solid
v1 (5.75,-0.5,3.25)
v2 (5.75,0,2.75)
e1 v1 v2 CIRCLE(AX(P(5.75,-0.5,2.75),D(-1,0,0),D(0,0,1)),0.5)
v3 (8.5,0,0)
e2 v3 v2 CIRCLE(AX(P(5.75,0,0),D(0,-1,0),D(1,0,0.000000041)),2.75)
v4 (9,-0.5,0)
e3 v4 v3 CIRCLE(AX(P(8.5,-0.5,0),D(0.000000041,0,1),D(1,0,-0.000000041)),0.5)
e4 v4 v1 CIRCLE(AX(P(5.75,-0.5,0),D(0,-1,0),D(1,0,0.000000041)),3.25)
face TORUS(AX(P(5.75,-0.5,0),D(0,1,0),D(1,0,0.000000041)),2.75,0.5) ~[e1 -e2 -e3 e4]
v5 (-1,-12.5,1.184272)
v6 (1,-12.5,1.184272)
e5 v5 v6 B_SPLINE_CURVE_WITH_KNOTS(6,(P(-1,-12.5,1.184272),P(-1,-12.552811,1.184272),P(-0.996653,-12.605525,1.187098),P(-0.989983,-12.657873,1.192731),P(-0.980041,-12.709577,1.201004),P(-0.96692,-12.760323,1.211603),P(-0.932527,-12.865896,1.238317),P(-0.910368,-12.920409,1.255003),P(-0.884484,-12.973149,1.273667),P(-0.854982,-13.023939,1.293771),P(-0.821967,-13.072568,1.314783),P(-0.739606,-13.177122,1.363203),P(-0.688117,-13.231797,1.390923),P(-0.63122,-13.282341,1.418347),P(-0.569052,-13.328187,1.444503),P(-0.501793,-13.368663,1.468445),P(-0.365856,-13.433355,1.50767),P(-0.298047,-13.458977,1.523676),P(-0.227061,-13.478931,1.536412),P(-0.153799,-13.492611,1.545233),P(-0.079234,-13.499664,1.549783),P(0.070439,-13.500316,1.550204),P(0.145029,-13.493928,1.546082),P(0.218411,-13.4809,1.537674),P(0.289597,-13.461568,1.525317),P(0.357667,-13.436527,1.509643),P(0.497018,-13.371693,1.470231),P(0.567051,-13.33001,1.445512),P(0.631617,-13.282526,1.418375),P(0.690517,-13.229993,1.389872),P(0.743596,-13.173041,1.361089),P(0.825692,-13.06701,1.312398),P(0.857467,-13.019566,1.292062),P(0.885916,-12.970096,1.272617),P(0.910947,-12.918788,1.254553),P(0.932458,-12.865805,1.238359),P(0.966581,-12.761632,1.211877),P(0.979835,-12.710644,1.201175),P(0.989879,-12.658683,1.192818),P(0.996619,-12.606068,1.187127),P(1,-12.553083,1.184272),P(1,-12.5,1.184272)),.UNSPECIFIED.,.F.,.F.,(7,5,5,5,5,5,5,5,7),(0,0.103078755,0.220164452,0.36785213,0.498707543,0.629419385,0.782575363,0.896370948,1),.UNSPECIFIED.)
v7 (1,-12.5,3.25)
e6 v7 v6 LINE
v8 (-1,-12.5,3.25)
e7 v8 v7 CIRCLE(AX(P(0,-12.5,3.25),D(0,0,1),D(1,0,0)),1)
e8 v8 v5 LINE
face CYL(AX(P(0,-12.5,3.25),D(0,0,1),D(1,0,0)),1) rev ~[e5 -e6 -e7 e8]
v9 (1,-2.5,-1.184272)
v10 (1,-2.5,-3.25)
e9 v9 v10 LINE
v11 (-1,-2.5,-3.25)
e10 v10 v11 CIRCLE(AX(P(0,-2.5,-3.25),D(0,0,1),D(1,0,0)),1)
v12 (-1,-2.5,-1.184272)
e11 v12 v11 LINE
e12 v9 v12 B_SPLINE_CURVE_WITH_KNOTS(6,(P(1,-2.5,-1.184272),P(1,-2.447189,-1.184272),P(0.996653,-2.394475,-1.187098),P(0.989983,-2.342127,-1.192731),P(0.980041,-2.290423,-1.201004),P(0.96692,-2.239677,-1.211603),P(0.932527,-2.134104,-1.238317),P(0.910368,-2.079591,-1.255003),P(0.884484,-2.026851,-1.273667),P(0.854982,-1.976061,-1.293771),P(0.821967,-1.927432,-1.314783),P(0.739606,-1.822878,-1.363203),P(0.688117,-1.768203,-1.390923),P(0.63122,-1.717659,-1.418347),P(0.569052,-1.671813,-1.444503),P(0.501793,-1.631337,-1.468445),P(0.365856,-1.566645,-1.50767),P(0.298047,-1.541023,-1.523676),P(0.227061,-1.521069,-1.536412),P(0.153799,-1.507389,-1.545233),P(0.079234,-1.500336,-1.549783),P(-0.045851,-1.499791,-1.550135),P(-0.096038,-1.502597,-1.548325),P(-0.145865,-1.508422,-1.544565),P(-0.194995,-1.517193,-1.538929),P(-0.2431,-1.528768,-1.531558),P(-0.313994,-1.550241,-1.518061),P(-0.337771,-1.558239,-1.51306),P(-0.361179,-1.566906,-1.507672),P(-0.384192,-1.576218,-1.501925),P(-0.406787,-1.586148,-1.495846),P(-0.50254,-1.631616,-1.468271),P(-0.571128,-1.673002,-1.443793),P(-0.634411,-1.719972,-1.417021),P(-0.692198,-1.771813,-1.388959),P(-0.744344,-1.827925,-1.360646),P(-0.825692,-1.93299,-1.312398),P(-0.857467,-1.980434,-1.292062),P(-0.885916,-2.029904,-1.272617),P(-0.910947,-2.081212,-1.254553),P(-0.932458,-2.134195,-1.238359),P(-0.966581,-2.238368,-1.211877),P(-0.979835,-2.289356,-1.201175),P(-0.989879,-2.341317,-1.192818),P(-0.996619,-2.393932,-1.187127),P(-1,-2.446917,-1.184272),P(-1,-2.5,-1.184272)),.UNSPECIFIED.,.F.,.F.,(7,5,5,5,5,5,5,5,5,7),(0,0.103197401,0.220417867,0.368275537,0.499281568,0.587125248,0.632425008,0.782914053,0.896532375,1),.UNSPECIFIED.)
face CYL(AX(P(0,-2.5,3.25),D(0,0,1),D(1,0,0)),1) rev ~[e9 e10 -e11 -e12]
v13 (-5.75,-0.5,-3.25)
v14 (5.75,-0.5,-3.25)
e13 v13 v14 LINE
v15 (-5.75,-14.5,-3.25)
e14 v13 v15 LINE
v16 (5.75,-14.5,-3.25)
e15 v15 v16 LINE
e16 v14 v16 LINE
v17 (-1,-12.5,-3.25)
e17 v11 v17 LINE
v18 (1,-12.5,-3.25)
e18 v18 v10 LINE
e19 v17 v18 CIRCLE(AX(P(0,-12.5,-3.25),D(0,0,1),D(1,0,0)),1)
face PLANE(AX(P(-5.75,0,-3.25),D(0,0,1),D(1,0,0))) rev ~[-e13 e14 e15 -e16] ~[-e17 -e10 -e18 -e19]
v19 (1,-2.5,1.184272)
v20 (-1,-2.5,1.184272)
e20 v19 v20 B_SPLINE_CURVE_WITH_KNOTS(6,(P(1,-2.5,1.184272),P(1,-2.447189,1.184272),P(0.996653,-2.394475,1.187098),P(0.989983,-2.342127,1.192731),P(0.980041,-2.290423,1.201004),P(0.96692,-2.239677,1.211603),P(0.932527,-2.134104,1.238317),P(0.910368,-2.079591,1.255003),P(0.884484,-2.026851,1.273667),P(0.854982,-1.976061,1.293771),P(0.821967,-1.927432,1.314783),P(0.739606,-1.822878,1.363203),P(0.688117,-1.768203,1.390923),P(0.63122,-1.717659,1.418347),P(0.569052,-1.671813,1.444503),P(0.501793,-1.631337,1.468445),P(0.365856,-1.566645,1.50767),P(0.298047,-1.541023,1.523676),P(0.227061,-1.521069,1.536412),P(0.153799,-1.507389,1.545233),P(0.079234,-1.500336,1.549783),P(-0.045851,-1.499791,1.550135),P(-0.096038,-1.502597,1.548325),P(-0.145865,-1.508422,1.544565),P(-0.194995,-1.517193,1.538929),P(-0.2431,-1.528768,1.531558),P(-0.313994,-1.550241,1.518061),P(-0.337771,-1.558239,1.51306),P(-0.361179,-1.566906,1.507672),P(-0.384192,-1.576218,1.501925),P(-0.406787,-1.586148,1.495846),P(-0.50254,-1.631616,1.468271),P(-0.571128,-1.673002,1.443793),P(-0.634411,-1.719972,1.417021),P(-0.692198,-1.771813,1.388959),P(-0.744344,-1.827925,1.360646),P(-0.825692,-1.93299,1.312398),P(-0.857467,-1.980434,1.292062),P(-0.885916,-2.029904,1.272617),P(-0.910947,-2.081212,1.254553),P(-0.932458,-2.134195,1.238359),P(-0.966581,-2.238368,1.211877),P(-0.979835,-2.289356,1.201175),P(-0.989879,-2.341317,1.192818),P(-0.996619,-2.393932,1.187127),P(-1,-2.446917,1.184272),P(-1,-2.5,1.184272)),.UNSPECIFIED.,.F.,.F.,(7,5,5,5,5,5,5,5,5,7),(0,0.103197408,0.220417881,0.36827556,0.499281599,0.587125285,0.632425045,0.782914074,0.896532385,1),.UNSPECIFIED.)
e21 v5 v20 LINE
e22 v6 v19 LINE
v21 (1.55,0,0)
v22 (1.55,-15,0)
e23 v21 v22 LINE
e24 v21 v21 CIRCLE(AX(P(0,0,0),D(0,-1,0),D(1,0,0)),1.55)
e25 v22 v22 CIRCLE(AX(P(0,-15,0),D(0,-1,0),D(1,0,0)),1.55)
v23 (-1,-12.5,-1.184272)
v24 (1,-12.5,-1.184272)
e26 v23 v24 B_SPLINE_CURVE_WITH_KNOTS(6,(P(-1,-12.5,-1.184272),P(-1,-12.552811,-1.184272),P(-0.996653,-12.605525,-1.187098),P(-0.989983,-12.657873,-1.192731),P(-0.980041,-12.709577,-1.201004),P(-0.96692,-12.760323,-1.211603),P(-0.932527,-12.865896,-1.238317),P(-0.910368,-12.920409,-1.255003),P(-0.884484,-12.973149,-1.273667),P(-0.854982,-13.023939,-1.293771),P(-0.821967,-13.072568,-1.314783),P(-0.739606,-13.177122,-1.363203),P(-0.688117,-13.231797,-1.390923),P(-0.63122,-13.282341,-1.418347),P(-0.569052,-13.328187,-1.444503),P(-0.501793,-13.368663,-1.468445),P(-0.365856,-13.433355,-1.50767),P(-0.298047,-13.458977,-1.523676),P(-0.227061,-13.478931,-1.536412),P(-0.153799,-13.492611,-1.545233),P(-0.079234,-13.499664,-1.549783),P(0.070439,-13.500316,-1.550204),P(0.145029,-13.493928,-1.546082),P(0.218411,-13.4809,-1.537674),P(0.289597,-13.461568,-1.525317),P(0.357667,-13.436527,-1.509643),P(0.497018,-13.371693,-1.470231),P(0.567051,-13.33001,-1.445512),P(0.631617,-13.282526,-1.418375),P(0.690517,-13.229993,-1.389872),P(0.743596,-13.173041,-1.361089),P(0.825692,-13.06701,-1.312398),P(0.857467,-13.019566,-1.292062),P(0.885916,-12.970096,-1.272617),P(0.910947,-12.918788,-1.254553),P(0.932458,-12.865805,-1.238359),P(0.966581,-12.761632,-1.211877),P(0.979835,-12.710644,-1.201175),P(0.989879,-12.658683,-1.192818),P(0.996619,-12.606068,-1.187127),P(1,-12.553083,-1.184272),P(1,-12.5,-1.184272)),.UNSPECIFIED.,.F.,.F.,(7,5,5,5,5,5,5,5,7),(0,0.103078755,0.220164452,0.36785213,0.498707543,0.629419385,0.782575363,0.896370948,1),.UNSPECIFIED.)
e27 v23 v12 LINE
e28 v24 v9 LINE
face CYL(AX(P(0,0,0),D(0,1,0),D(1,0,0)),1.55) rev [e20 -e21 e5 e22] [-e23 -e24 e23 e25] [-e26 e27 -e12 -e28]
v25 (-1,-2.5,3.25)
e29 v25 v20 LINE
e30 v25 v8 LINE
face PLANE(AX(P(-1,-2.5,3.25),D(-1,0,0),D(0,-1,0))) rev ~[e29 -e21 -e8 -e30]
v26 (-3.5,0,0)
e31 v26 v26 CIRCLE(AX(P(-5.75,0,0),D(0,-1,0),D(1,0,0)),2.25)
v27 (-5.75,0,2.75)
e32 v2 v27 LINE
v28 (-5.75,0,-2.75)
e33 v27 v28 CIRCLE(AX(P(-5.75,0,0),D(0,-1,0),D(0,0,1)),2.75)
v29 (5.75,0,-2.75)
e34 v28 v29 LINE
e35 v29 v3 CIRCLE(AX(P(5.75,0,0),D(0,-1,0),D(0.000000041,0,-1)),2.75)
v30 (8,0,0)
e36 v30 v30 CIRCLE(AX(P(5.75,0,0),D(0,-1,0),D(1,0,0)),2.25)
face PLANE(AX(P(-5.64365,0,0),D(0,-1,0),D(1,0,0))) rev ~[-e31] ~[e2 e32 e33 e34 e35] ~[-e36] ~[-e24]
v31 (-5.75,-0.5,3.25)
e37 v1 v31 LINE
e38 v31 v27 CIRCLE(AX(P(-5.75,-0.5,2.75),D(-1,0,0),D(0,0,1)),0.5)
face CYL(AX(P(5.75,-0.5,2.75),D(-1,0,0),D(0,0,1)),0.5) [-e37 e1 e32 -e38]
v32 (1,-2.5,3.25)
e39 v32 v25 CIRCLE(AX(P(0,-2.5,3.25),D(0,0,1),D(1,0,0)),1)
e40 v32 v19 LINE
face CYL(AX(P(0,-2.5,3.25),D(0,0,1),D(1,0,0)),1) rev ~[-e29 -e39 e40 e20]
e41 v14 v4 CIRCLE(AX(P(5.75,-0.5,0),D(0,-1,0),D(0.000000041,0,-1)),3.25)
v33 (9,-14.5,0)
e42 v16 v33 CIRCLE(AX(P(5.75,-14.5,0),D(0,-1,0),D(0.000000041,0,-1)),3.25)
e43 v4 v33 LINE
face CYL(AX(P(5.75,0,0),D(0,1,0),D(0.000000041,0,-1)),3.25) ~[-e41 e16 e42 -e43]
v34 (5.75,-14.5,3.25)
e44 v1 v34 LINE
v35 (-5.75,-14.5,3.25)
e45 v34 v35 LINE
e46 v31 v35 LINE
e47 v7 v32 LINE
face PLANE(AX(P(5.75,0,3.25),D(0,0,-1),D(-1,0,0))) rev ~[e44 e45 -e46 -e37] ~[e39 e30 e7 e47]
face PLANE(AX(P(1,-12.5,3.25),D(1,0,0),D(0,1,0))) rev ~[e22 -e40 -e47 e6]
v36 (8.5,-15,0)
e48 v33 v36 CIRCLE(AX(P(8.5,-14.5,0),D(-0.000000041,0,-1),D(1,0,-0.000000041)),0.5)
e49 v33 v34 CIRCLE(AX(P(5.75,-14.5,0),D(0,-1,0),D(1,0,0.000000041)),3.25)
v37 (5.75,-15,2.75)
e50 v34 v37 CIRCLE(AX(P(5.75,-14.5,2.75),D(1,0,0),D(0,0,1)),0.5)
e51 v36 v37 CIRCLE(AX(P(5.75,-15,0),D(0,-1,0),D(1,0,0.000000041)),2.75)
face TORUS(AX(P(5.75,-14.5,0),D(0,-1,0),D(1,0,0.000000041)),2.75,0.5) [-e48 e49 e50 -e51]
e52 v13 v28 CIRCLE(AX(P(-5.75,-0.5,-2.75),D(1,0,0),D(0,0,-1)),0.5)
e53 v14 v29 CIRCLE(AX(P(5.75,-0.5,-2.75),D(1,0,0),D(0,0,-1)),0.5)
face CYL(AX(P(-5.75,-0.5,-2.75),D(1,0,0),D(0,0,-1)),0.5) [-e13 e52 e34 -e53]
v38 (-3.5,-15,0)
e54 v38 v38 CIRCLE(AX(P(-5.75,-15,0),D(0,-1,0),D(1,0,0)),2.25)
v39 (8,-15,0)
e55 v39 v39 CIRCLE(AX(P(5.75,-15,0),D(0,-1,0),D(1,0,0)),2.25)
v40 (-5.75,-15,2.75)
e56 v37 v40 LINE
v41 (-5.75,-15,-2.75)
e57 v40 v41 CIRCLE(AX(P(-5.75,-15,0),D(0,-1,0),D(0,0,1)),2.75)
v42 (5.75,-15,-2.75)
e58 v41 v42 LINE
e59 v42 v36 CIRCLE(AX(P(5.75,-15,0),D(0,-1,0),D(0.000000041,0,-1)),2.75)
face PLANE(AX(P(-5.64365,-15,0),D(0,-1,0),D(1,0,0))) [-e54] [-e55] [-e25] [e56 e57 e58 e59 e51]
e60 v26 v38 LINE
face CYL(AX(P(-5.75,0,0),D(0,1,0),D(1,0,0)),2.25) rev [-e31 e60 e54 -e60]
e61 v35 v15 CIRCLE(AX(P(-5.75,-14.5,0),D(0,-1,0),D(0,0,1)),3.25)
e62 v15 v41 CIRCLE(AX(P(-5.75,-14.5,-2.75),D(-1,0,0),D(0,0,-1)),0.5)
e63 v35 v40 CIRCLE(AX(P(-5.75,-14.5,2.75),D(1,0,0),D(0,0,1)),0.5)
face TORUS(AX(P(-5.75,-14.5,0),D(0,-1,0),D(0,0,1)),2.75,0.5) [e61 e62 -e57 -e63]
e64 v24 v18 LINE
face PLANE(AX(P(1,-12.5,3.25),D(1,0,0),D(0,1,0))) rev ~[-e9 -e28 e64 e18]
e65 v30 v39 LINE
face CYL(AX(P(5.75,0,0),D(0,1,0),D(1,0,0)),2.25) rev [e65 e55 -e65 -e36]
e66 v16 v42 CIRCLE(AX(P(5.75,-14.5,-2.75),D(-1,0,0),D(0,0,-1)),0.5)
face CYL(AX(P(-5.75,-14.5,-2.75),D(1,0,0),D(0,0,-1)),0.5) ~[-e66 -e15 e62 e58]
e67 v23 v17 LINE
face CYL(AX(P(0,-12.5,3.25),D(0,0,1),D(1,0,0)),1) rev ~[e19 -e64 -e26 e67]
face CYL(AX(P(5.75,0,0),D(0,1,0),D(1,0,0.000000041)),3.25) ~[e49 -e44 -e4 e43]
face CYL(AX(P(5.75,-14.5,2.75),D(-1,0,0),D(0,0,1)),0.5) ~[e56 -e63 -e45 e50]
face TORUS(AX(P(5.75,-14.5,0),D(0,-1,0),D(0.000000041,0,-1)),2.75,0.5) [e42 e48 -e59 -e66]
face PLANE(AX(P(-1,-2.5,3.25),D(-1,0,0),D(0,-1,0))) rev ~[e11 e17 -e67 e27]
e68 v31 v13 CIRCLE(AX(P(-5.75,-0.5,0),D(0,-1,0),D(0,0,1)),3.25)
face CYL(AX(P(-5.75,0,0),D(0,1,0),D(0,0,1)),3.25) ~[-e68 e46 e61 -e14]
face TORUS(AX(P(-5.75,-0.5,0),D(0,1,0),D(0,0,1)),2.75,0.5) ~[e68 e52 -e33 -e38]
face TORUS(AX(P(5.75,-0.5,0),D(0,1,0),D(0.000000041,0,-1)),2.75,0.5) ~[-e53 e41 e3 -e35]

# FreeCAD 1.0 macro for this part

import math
import FreeCAD as App
import Part
import Sketcher


def edges_at(feature, points):
    """Names of the edges that pass closest to the given points."""
    edges = feature.Shape.Edges
    near = lambda p: min(range(len(edges)), key=lambda i: edges[i].distToShape(Part.Vertex(*p))[0])
    return sorted({f"Edge{near(p) + 1}" for p in points})

doc = App.newDocument("Part")
params = doc.addObject("Spreadsheet::Sheet", "Params")
for row, (alias, value) in enumerate([
    ("sketch1_diameter", "4.5 mm"),
    ("sketch1_diameter2", "3.1 mm"),
    ("sketch1_radius", "3.25 mm"),
    ("sketch1_width", "11.5 mm"),
    ("pad1_length", "15 mm"),
    ("sketch2_radius", "1 mm"),
    ("sketch2_height", "10 mm"),
    ("fillet_radius", "0.5 mm"),
], start=1):
    params.set(f"A{row}", alias)
    params.set(f"B{row}", "=" + value)
    params.setAlias(f"B{row}", alias)

body = doc.addObject("PartDesign::Body", "Body")

sketch1 = doc.addObject("Sketcher::SketchObject", "Sketch")
body.addObject(sketch1)
sketch1.AttachmentSupport = (doc.XZ_Plane, [""])
sketch1.MapMode = "FlatFace"
sketch1.addGeometry([
    Part.ArcOfCircle(Part.Circle(App.Vector(-5.8, 0, 0), App.Vector(0, 0, 1), 3.2), math.radians(90), math.radians(270)),
    Part.LineSegment(App.Vector(-5.8, -3.2, 0), App.Vector(5.8, -3.2, 0)),
    Part.ArcOfCircle(Part.Circle(App.Vector(5.7, 0, 0), App.Vector(0, 0, 1), 3.3), math.radians(-90), math.radians(0)),
    Part.ArcOfCircle(Part.Circle(App.Vector(5.7, 0, 0), App.Vector(0, 0, 1), 3.3), math.radians(0), math.radians(90)),
    Part.LineSegment(App.Vector(5.8, 3.2, 0), App.Vector(-5.8, 3.2, 0)),
    Part.Circle(App.Vector(-5.8, 0, 0), App.Vector(0, 0, 1), 2.2),
    Part.Circle(App.Vector(0, 0, 0), App.Vector(0, 0, 1), 1.6),
    Part.Circle(App.Vector(5.8, 0, 0), App.Vector(0, 0, 1), 2.2),
], False)
sketch1.addConstraint([
    Sketcher.Constraint("Tangent", 0, 2, 1, 1),
    Sketcher.Constraint("Tangent", 1, 2, 2, 1),
    Sketcher.Constraint("Tangent", 2, 2, 3, 1),
    Sketcher.Constraint("Tangent", 3, 2, 4, 1),
    Sketcher.Constraint("Tangent", 4, 2, 0, 1),
    Sketcher.Constraint("Horizontal", 1),
    Sketcher.Constraint("Horizontal", 4),
    Sketcher.Constraint("Coincident", 6, 3, -1, 1),
    Sketcher.Constraint("Coincident", 5, 3, 0, 3),
    Sketcher.Constraint("Coincident", 7, 3, 2, 3),
    Sketcher.Constraint("Equal", 0, 2),
    Sketcher.Constraint("Equal", 5, 7),
    Sketcher.Constraint("Symmetric", 0, 3, 2, 3, -1, 1),
    Sketcher.Constraint("PointOnObject", 2, 2, -1),
    Sketcher.Constraint("Diameter", 5, 4.5),
    Sketcher.Constraint("Diameter", 6, 3.1),
    Sketcher.Constraint("Radius", 0, 3.25),
    Sketcher.Constraint("DistanceX", 1, 1, 1, 2, 11.5),
])
sketch1.setExpression("Constraints[14]", "Params.sketch1_diameter")
sketch1.setExpression("Constraints[15]", "Params.sketch1_diameter2")
sketch1.setExpression("Constraints[16]", "Params.sketch1_radius")
sketch1.setExpression("Constraints[17]", "Params.sketch1_width")
pad1 = doc.addObject("PartDesign::Pad", "Pad")
body.addObject(pad1)
pad1.Profile = sketch1
pad1.setExpression("Length", "Params.pad1_length")

sketch2 = doc.addObject("Sketcher::SketchObject", "Sketch001")
body.addObject(sketch2)
sketch2.AttachmentSupport = (doc.XY_Plane, [""])
sketch2.MapMode = "FlatFace"
sketch2.AttachmentOffset = App.Placement(App.Vector(0, 0, 3.25), App.Rotation())
sketch2.addGeometry([
    Part.ArcOfCircle(Part.Circle(App.Vector(0, -12.5, 0), App.Vector(0, 0, 1), 1), math.radians(180), math.radians(360)),
    Part.LineSegment(App.Vector(1, -12.5, 0), App.Vector(1, -2.5, 0)),
    Part.ArcOfCircle(Part.Circle(App.Vector(0, -2.5, 0), App.Vector(0, 0, 1), 1), math.radians(0), math.radians(180)),
    Part.LineSegment(App.Vector(-1, -2.5, 0), App.Vector(-1, -12.5, 0)),
], False)
sketch2.addConstraint([
    Sketcher.Constraint("Tangent", 0, 2, 1, 1),
    Sketcher.Constraint("Tangent", 1, 2, 2, 1),
    Sketcher.Constraint("Tangent", 2, 2, 3, 1),
    Sketcher.Constraint("Tangent", 3, 2, 0, 1),
    Sketcher.Constraint("Vertical", 1),
    Sketcher.Constraint("Vertical", 3),
    Sketcher.Constraint("PointOnObject", 0, 3, -2),
    Sketcher.Constraint("Radius", 0, 1.0),
    Sketcher.Constraint("DistanceY", 1, 1, 1, 2, 10.0),
    Sketcher.Constraint("DistanceY", 0, 3, -1, 1, 12.5),
])
sketch2.setExpression("Constraints[7]", "Params.sketch2_radius")
sketch2.setExpression("Constraints[8]", "Params.sketch2_height")
pocket1 = doc.addObject("PartDesign::Pocket", "Pocket")
body.addObject(pocket1)
pocket1.Profile = sketch2
pocket1.Type = "ThroughAll"
doc.recompute()

fillet = doc.addObject("PartDesign::Fillet", "Fillet")
body.addObject(fillet)
fillet.Base = (pocket1, edges_at(pocket1, [(0, 0, 3.25), (0, -15, 3.25)]))
fillet.setExpression("Radius", "Params.fillet_radius")

doc.recompute()
